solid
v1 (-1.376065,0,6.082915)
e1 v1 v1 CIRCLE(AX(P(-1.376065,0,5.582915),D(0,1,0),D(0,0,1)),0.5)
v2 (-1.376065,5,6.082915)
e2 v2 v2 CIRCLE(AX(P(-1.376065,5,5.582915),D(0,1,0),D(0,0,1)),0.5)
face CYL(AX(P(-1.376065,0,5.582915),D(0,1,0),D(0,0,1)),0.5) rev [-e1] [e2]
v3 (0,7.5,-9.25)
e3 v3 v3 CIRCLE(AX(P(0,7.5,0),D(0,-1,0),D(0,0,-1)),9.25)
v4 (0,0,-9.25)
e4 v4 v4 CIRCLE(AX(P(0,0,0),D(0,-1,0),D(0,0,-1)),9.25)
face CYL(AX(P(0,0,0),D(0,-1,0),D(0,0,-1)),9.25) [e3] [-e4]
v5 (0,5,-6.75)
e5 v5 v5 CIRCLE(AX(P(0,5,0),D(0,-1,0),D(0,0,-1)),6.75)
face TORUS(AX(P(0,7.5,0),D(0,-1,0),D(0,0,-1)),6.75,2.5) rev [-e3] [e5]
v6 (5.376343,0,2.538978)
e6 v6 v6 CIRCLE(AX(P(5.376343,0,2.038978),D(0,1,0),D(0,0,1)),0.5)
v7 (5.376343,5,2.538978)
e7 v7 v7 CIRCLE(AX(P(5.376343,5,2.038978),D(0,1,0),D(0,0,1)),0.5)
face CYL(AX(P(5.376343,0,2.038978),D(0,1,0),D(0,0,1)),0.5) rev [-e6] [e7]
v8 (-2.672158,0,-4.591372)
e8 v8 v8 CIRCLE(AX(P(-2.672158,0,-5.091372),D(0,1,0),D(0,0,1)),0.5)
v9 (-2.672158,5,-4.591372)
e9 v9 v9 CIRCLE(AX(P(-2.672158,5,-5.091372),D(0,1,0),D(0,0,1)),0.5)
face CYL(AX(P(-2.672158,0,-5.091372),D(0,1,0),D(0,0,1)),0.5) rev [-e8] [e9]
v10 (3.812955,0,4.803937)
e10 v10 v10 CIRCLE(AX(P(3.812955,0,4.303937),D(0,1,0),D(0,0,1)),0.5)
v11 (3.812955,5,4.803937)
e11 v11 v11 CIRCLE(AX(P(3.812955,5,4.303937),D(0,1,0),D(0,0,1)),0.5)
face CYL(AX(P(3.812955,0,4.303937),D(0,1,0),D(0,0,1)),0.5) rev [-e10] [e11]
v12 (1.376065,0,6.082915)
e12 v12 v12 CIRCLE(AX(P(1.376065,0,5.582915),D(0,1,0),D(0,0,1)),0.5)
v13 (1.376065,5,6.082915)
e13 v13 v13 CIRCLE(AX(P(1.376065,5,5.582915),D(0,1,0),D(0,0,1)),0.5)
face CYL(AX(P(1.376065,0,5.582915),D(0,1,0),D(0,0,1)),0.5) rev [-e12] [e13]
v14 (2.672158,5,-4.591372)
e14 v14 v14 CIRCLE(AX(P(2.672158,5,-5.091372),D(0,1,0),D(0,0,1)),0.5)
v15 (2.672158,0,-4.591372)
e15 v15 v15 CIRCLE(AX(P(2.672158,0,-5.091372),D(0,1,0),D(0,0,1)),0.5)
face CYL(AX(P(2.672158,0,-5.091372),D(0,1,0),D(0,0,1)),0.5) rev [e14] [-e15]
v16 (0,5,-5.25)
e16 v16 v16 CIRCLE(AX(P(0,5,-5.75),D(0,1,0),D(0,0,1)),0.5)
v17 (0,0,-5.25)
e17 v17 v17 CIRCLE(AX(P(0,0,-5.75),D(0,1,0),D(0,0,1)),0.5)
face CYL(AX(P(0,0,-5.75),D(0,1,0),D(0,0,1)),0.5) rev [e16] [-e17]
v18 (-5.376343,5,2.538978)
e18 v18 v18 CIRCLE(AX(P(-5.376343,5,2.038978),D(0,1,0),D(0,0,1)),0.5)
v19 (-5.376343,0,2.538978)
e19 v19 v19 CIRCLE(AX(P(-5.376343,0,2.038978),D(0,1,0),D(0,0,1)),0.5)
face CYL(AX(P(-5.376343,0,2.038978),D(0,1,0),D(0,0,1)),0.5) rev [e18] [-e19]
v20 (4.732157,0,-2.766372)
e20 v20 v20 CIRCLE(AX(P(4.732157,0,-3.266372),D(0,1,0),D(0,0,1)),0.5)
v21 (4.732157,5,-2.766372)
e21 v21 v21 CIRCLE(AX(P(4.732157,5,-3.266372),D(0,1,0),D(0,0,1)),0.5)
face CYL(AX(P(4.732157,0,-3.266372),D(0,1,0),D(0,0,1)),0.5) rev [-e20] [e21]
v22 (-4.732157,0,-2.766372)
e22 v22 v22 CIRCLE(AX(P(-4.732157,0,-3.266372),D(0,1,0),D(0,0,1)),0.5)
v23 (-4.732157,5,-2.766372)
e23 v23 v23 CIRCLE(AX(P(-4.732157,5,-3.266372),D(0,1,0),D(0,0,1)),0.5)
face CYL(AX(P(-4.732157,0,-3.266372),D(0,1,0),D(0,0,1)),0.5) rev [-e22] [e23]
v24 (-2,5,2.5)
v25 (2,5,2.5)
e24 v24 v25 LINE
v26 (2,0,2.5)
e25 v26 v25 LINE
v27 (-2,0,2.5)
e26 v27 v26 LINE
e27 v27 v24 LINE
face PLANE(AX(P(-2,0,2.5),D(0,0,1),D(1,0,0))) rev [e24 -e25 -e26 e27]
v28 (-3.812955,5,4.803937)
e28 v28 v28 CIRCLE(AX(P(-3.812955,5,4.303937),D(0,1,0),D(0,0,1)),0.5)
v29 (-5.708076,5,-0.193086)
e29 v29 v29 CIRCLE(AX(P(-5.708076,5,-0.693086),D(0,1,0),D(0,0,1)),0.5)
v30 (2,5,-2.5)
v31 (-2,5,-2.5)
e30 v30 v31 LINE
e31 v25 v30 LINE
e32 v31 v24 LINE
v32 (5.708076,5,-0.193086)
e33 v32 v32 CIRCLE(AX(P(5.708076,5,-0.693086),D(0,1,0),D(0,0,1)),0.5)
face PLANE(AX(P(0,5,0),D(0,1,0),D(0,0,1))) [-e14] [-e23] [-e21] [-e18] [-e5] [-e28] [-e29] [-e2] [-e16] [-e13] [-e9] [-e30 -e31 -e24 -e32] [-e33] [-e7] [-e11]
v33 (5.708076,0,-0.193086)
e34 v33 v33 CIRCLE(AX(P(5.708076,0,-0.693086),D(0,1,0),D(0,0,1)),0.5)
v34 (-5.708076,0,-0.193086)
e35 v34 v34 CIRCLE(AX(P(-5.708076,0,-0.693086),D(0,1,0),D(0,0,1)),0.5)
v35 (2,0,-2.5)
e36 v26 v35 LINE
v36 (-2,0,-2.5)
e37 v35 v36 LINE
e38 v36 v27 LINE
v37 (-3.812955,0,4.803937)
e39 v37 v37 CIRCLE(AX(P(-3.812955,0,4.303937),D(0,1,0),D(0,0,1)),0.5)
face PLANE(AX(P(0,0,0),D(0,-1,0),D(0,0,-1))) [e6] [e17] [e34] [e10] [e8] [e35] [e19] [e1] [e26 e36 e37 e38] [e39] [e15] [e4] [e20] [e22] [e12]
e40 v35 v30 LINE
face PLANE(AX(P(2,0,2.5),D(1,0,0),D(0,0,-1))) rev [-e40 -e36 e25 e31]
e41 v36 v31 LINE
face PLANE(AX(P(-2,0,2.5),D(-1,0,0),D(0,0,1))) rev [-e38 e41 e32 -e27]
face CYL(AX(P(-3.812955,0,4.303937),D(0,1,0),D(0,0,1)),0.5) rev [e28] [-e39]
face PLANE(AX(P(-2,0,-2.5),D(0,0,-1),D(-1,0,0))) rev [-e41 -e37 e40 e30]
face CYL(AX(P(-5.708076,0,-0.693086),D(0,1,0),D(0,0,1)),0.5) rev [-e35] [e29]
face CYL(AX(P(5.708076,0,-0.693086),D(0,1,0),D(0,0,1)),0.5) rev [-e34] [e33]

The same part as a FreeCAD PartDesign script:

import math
import FreeCAD as App
import Part
import Sketcher

doc = App.newDocument("Part")
body = doc.addObject("PartDesign::Body", "Body")

# Sketch on XY plane
sketch1 = doc.addObject("Sketcher::SketchObject", "Sketch")
body.addObject(sketch1)
sketch1.AttachmentSupport = (doc.XY_Plane, [""])
sketch1.MapMode = "FlatFace"
sketch1.addGeometry([
    Part.ArcOfCircle(Part.Circle(App.Vector(6.75, 7.5, 0), App.Vector(0, 0, 1), 2.5), math.radians(-90), math.radians(0)),  # 0
    Part.LineSegment(App.Vector(6.75, 5, 0), App.Vector(0, 5, 0)),  # 1
    Part.LineSegment(App.Vector(0, 5, 0), App.Vector(0, 0, 0)),  # 2
    Part.LineSegment(App.Vector(0, 0, 0), App.Vector(9.25, 0, 0)),  # 3
    Part.LineSegment(App.Vector(9.25, 0, 0), App.Vector(9.25, 7.5, 0)),  # 4
], False)
sketch1.addConstraint([
    Sketcher.Constraint("Tangent", 0, 1, 1, 1),
    Sketcher.Constraint("Coincident", 1, 2, 2, 1),
    Sketcher.Constraint("Coincident", 2, 2, 3, 1),
    Sketcher.Constraint("Coincident", 3, 2, 4, 1),
    Sketcher.Constraint("Tangent", 4, 2, 0, 2),
    Sketcher.Constraint("Horizontal", 1),
    Sketcher.Constraint("Vertical", 2),
    Sketcher.Constraint("Horizontal", 3),
    Sketcher.Constraint("Vertical", 4),
    Sketcher.Constraint("Coincident", 2, 2, -1, 1),
    Sketcher.Constraint("Radius", 0, 2.5),
    Sketcher.Constraint("DistanceY", 2, 2, 2, 1, 5.0),
    Sketcher.Constraint("DistanceX", 1, 2, 1, 1, 6.75),
])
revolution = doc.addObject("PartDesign::Revolution", "Revolution")
body.addObject(revolution)
revolution.Profile = sketch1
revolution.ReferenceAxis = (sketch1, ["V_Axis"])
revolution.Angle = 360

# Sketch on XZ plane
sketch2 = doc.addObject("Sketcher::SketchObject", "Sketch001")
body.addObject(sketch2)
sketch2.AttachmentSupport = (doc.XZ_Plane, [""])
sketch2.MapMode = "FlatFace"
sketch2.AttachmentOffset = App.Placement(App.Vector(0, 0, -5), App.Rotation())
sketch2.addGeometry([
    Part.Circle(App.Vector(0, -5.75, 0), App.Vector(0, 0, 1), 0.5),  # 0
    Part.Circle(App.Vector(2.672158, -5.091372, 0), App.Vector(0, 0, 1), 0.5),  # 1
    Part.Circle(App.Vector(4.732157, -3.266372, 0), App.Vector(0, 0, 1), 0.5),  # 2
    Part.Circle(App.Vector(5.708076, -0.693086, 0), App.Vector(0, 0, 1), 0.5),  # 3
    Part.Circle(App.Vector(5.376343, 2.038978, 0), App.Vector(0, 0, 1), 0.5),  # 4
    Part.Circle(App.Vector(3.812955, 4.303937, 0), App.Vector(0, 0, 1), 0.5),  # 5
    Part.Circle(App.Vector(1.376065, 5.582915, 0), App.Vector(0, 0, 1), 0.5),  # 6
    Part.Circle(App.Vector(-1.376065, 5.582915, 0), App.Vector(0, 0, 1), 0.5),  # 7
    Part.Circle(App.Vector(-3.812955, 4.303937, 0), App.Vector(0, 0, 1), 0.5),  # 8
    Part.Circle(App.Vector(-5.376343, 2.038978, 0), App.Vector(0, 0, 1), 0.5),  # 9
    Part.Circle(App.Vector(-5.708076, -0.693086, 0), App.Vector(0, 0, 1), 0.5),  # 10
    Part.Circle(App.Vector(-4.732157, -3.266372, 0), App.Vector(0, 0, 1), 0.5),  # 11
    Part.Circle(App.Vector(-2.672158, -5.091372, 0), App.Vector(0, 0, 1), 0.5),  # 12
    Part.LineSegment(App.Vector(-2, -2.5, 0), App.Vector(-2, 2.5, 0)),  # 13
    Part.LineSegment(App.Vector(-2, 2.5, 0), App.Vector(2, 2.5, 0)),  # 14
    Part.LineSegment(App.Vector(2, 2.5, 0), App.Vector(2, -2.5, 0)),  # 15
    Part.LineSegment(App.Vector(2, -2.5, 0), App.Vector(-2, -2.5, 0)),  # 16
], False)
sketch2.addConstraint([
    Sketcher.Constraint("Coincident", 13, 2, 14, 1),
    Sketcher.Constraint("Coincident", 14, 2, 15, 1),
    Sketcher.Constraint("Coincident", 15, 2, 16, 1),
    Sketcher.Constraint("Coincident", 16, 2, 13, 1),
    Sketcher.Constraint("Vertical", 13),
    Sketcher.Constraint("Horizontal", 14),
    Sketcher.Constraint("Vertical", 15),
    Sketcher.Constraint("Horizontal", 16),
    Sketcher.Constraint("Equal", 0, 1),
    Sketcher.Constraint("Equal", 1, 2),
    Sketcher.Constraint("Equal", 2, 3),
    Sketcher.Constraint("Equal", 3, 4),
    Sketcher.Constraint("Equal", 4, 5),
    Sketcher.Constraint("Equal", 5, 6),
    Sketcher.Constraint("Equal", 6, 7),
    Sketcher.Constraint("Equal", 7, 8),
    Sketcher.Constraint("Equal", 8, 9),
    Sketcher.Constraint("Equal", 9, 10),
    Sketcher.Constraint("Equal", 10, 11),
    Sketcher.Constraint("Equal", 11, 12),
    Sketcher.Constraint("Symmetric", 13, 2, 15, 2, -1, 1),
    Sketcher.Constraint("Symmetric", 6, 3, 7, 3, -2),
    Sketcher.Constraint("Symmetric", 5, 3, 8, 3, -2),
    Sketcher.Constraint("Symmetric", 4, 3, 9, 3, -2),
    Sketcher.Constraint("Symmetric", 3, 3, 10, 3, -2),
    Sketcher.Constraint("Symmetric", 2, 3, 11, 3, -2),
    Sketcher.Constraint("Symmetric", 1, 3, 12, 3, -2),
    Sketcher.Constraint("PointOnObject", 0, 3, -2),
    Sketcher.Constraint("Diameter", 0, 1.0),
    Sketcher.Constraint("DistanceX", 14, 1, 14, 2, 4.0),
    Sketcher.Constraint("DistanceY", 13, 1, 13, 2, 5.0),
    Sketcher.Constraint("DistanceY", 0, 3, -1, 1, 5.75),
    Sketcher.Constraint("DistanceX", 1, 3, 2, 3, 2.059999),
    Sketcher.Constraint("DistanceY", 1, 3, 2, 3, 1.825),
    Sketcher.Constraint("DistanceY", 3, 3, 6, 3, 6.276001),
    Sketcher.Constraint("DistanceX", 5, 3, 2, 3, 0.919202),
    Sketcher.Constraint("DistanceX", 8, 3, 4, 3, 9.189299),
    Sketcher.Constraint("DistanceX", -1, 1, 1, 3, 2.672158),
    Sketcher.Constraint("DistanceY", -1, 1, 4, 3, 2.038978),
    Sketcher.Constraint("DistanceX", 2, 3, 3, 3, 0.975919),
    Sketcher.Constraint("DistanceY", 2, 3, 4, 3, 5.30535),
    Sketcher.Constraint("DistanceY", 4, 3, 5, 3, 2.264959),
    Sketcher.Constraint("DistanceX", 6, 3, 5, 3, 2.43689),
    Sketcher.Constraint("DistanceY", 5, 3, 6, 3, 1.278979),
])
pocket1 = doc.addObject("PartDesign::Pocket", "Pocket")
body.addObject(pocket1)
pocket1.Profile = sketch2
pocket1.Type = "ThroughAll"
pocket1.Reversed = True

doc.recompute()
